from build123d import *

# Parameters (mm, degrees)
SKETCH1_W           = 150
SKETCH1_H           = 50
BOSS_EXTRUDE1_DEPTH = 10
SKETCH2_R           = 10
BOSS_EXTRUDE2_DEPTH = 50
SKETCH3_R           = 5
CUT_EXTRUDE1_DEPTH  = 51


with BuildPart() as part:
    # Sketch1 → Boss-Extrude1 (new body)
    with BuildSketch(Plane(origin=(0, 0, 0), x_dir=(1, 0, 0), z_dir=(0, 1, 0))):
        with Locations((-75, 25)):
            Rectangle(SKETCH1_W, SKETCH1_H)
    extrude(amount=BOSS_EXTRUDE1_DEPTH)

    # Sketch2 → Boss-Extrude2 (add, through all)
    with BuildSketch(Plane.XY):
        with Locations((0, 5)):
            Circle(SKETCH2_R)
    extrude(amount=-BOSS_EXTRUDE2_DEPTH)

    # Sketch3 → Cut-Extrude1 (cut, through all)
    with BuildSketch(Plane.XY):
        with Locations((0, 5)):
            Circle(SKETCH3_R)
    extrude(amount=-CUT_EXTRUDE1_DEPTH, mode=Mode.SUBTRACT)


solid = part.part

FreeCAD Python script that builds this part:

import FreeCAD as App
import Part
import Sketcher


def add_polygon(sketch, points):
    """Adds a closed chain of lines whose ends are joined by coincident constraints."""
    first, n = sketch.GeometryCount, len(points)
    for a, b in zip(points, points[1:] + points[:1]):
        sketch.addGeometry(Part.LineSegment(App.Vector(*a, 0), App.Vector(*b, 0)), False)
    for i in range(n):
        sketch.addConstraint(Sketcher.Constraint("Coincident", first + i, 2, first + (i + 1) % n, 1))

doc = App.newDocument("Part")
params = doc.addObject("Spreadsheet::Sheet", "Params")
for row, (alias, value) in enumerate([
    ("sketch1_width", "150 mm"),
    ("sketch1_height", "50 mm"),
    ("pad1_length", "10 mm"),
    ("sketch2_diameter", "20 mm"),
    ("sketch3_diameter", "10 mm"),
], start=1):
    params.set(f"A{row}", alias)
    params.set(f"B{row}", "=" + value)
    params.setAlias(f"B{row}", alias)

body = doc.addObject("PartDesign::Body", "Body")

sketch1 = body.newObject("Sketcher::SketchObject", "Sketch")
sketch1.AttachmentSupport = (doc.getObject("XZ_Plane"), [""])
sketch1.MapMode = "FlatFace"
add_polygon(sketch1, [(-150, -50), (-150, 0), (0, 0), (0, -50)])
sketch1.addConstraint([
    Sketcher.Constraint("Vertical", 0),
    Sketcher.Constraint("Horizontal", 1),
    Sketcher.Constraint("Vertical", 2),
    Sketcher.Constraint("Horizontal", 3),
    Sketcher.Constraint("Coincident", 1, 2, -1, 1),
    Sketcher.Constraint("DistanceX", 1, 1, 1, 2, 150.0),
    Sketcher.Constraint("DistanceY", 0, 1, 0, 2, 50.0),
])
sketch1.setExpression("Constraints[9]", "Params.sketch1_width")
sketch1.setExpression("Constraints[10]", "Params.sketch1_height")
pad1 = body.newObject("PartDesign::Pad", "Pad")
pad1.Profile = sketch1
pad1.setExpression("Length", "Params.pad1_length")
pad1.Reversed = True

sketch2 = body.newObject("Sketcher::SketchObject", "Sketch001")
sketch2.AttachmentSupport = (doc.getObject("XY_Plane"), [""])
sketch2.MapMode = "FlatFace"
sketch2.addGeometry(Part.Circle(App.Vector(0, 5, 0), App.Vector(0, 0, 1), 10), False)
sketch2.addConstraint([
    Sketcher.Constraint("PointOnObject", 0, 3, -2),
    Sketcher.Constraint("Diameter", 0, 20.0),
    Sketcher.Constraint("DistanceY", -1, 1, 0, 3, 5.0),
])
sketch2.setExpression("Constraints[1]", "Params.sketch2_diameter")
pad2 = body.newObject("PartDesign::Pad", "Pad001")
pad2.Profile = sketch2
pad2.Type = "UpToLast"
pad2.Reversed = True

sketch3 = body.newObject("Sketcher::SketchObject", "Sketch002")
sketch3.AttachmentSupport = (doc.getObject("XY_Plane"), [""])
sketch3.MapMode = "FlatFace"
sketch3.addGeometry(Part.Circle(App.Vector(0, 5, 0), App.Vector(0, 0, 1), 5), False)
sketch3.addConstraint([
    Sketcher.Constraint("PointOnObject", 0, 3, -2),
    Sketcher.Constraint("Diameter", 0, 10.0),
    Sketcher.Constraint("DistanceY", -1, 1, 0, 3, 5.0),
])
sketch3.setExpression("Constraints[1]", "Params.sketch3_diameter")
pocket1 = body.newObject("PartDesign::Pocket", "Pocket")
pocket1.Profile = sketch3
pocket1.Type = "ThroughAll"

doc.recompute()
